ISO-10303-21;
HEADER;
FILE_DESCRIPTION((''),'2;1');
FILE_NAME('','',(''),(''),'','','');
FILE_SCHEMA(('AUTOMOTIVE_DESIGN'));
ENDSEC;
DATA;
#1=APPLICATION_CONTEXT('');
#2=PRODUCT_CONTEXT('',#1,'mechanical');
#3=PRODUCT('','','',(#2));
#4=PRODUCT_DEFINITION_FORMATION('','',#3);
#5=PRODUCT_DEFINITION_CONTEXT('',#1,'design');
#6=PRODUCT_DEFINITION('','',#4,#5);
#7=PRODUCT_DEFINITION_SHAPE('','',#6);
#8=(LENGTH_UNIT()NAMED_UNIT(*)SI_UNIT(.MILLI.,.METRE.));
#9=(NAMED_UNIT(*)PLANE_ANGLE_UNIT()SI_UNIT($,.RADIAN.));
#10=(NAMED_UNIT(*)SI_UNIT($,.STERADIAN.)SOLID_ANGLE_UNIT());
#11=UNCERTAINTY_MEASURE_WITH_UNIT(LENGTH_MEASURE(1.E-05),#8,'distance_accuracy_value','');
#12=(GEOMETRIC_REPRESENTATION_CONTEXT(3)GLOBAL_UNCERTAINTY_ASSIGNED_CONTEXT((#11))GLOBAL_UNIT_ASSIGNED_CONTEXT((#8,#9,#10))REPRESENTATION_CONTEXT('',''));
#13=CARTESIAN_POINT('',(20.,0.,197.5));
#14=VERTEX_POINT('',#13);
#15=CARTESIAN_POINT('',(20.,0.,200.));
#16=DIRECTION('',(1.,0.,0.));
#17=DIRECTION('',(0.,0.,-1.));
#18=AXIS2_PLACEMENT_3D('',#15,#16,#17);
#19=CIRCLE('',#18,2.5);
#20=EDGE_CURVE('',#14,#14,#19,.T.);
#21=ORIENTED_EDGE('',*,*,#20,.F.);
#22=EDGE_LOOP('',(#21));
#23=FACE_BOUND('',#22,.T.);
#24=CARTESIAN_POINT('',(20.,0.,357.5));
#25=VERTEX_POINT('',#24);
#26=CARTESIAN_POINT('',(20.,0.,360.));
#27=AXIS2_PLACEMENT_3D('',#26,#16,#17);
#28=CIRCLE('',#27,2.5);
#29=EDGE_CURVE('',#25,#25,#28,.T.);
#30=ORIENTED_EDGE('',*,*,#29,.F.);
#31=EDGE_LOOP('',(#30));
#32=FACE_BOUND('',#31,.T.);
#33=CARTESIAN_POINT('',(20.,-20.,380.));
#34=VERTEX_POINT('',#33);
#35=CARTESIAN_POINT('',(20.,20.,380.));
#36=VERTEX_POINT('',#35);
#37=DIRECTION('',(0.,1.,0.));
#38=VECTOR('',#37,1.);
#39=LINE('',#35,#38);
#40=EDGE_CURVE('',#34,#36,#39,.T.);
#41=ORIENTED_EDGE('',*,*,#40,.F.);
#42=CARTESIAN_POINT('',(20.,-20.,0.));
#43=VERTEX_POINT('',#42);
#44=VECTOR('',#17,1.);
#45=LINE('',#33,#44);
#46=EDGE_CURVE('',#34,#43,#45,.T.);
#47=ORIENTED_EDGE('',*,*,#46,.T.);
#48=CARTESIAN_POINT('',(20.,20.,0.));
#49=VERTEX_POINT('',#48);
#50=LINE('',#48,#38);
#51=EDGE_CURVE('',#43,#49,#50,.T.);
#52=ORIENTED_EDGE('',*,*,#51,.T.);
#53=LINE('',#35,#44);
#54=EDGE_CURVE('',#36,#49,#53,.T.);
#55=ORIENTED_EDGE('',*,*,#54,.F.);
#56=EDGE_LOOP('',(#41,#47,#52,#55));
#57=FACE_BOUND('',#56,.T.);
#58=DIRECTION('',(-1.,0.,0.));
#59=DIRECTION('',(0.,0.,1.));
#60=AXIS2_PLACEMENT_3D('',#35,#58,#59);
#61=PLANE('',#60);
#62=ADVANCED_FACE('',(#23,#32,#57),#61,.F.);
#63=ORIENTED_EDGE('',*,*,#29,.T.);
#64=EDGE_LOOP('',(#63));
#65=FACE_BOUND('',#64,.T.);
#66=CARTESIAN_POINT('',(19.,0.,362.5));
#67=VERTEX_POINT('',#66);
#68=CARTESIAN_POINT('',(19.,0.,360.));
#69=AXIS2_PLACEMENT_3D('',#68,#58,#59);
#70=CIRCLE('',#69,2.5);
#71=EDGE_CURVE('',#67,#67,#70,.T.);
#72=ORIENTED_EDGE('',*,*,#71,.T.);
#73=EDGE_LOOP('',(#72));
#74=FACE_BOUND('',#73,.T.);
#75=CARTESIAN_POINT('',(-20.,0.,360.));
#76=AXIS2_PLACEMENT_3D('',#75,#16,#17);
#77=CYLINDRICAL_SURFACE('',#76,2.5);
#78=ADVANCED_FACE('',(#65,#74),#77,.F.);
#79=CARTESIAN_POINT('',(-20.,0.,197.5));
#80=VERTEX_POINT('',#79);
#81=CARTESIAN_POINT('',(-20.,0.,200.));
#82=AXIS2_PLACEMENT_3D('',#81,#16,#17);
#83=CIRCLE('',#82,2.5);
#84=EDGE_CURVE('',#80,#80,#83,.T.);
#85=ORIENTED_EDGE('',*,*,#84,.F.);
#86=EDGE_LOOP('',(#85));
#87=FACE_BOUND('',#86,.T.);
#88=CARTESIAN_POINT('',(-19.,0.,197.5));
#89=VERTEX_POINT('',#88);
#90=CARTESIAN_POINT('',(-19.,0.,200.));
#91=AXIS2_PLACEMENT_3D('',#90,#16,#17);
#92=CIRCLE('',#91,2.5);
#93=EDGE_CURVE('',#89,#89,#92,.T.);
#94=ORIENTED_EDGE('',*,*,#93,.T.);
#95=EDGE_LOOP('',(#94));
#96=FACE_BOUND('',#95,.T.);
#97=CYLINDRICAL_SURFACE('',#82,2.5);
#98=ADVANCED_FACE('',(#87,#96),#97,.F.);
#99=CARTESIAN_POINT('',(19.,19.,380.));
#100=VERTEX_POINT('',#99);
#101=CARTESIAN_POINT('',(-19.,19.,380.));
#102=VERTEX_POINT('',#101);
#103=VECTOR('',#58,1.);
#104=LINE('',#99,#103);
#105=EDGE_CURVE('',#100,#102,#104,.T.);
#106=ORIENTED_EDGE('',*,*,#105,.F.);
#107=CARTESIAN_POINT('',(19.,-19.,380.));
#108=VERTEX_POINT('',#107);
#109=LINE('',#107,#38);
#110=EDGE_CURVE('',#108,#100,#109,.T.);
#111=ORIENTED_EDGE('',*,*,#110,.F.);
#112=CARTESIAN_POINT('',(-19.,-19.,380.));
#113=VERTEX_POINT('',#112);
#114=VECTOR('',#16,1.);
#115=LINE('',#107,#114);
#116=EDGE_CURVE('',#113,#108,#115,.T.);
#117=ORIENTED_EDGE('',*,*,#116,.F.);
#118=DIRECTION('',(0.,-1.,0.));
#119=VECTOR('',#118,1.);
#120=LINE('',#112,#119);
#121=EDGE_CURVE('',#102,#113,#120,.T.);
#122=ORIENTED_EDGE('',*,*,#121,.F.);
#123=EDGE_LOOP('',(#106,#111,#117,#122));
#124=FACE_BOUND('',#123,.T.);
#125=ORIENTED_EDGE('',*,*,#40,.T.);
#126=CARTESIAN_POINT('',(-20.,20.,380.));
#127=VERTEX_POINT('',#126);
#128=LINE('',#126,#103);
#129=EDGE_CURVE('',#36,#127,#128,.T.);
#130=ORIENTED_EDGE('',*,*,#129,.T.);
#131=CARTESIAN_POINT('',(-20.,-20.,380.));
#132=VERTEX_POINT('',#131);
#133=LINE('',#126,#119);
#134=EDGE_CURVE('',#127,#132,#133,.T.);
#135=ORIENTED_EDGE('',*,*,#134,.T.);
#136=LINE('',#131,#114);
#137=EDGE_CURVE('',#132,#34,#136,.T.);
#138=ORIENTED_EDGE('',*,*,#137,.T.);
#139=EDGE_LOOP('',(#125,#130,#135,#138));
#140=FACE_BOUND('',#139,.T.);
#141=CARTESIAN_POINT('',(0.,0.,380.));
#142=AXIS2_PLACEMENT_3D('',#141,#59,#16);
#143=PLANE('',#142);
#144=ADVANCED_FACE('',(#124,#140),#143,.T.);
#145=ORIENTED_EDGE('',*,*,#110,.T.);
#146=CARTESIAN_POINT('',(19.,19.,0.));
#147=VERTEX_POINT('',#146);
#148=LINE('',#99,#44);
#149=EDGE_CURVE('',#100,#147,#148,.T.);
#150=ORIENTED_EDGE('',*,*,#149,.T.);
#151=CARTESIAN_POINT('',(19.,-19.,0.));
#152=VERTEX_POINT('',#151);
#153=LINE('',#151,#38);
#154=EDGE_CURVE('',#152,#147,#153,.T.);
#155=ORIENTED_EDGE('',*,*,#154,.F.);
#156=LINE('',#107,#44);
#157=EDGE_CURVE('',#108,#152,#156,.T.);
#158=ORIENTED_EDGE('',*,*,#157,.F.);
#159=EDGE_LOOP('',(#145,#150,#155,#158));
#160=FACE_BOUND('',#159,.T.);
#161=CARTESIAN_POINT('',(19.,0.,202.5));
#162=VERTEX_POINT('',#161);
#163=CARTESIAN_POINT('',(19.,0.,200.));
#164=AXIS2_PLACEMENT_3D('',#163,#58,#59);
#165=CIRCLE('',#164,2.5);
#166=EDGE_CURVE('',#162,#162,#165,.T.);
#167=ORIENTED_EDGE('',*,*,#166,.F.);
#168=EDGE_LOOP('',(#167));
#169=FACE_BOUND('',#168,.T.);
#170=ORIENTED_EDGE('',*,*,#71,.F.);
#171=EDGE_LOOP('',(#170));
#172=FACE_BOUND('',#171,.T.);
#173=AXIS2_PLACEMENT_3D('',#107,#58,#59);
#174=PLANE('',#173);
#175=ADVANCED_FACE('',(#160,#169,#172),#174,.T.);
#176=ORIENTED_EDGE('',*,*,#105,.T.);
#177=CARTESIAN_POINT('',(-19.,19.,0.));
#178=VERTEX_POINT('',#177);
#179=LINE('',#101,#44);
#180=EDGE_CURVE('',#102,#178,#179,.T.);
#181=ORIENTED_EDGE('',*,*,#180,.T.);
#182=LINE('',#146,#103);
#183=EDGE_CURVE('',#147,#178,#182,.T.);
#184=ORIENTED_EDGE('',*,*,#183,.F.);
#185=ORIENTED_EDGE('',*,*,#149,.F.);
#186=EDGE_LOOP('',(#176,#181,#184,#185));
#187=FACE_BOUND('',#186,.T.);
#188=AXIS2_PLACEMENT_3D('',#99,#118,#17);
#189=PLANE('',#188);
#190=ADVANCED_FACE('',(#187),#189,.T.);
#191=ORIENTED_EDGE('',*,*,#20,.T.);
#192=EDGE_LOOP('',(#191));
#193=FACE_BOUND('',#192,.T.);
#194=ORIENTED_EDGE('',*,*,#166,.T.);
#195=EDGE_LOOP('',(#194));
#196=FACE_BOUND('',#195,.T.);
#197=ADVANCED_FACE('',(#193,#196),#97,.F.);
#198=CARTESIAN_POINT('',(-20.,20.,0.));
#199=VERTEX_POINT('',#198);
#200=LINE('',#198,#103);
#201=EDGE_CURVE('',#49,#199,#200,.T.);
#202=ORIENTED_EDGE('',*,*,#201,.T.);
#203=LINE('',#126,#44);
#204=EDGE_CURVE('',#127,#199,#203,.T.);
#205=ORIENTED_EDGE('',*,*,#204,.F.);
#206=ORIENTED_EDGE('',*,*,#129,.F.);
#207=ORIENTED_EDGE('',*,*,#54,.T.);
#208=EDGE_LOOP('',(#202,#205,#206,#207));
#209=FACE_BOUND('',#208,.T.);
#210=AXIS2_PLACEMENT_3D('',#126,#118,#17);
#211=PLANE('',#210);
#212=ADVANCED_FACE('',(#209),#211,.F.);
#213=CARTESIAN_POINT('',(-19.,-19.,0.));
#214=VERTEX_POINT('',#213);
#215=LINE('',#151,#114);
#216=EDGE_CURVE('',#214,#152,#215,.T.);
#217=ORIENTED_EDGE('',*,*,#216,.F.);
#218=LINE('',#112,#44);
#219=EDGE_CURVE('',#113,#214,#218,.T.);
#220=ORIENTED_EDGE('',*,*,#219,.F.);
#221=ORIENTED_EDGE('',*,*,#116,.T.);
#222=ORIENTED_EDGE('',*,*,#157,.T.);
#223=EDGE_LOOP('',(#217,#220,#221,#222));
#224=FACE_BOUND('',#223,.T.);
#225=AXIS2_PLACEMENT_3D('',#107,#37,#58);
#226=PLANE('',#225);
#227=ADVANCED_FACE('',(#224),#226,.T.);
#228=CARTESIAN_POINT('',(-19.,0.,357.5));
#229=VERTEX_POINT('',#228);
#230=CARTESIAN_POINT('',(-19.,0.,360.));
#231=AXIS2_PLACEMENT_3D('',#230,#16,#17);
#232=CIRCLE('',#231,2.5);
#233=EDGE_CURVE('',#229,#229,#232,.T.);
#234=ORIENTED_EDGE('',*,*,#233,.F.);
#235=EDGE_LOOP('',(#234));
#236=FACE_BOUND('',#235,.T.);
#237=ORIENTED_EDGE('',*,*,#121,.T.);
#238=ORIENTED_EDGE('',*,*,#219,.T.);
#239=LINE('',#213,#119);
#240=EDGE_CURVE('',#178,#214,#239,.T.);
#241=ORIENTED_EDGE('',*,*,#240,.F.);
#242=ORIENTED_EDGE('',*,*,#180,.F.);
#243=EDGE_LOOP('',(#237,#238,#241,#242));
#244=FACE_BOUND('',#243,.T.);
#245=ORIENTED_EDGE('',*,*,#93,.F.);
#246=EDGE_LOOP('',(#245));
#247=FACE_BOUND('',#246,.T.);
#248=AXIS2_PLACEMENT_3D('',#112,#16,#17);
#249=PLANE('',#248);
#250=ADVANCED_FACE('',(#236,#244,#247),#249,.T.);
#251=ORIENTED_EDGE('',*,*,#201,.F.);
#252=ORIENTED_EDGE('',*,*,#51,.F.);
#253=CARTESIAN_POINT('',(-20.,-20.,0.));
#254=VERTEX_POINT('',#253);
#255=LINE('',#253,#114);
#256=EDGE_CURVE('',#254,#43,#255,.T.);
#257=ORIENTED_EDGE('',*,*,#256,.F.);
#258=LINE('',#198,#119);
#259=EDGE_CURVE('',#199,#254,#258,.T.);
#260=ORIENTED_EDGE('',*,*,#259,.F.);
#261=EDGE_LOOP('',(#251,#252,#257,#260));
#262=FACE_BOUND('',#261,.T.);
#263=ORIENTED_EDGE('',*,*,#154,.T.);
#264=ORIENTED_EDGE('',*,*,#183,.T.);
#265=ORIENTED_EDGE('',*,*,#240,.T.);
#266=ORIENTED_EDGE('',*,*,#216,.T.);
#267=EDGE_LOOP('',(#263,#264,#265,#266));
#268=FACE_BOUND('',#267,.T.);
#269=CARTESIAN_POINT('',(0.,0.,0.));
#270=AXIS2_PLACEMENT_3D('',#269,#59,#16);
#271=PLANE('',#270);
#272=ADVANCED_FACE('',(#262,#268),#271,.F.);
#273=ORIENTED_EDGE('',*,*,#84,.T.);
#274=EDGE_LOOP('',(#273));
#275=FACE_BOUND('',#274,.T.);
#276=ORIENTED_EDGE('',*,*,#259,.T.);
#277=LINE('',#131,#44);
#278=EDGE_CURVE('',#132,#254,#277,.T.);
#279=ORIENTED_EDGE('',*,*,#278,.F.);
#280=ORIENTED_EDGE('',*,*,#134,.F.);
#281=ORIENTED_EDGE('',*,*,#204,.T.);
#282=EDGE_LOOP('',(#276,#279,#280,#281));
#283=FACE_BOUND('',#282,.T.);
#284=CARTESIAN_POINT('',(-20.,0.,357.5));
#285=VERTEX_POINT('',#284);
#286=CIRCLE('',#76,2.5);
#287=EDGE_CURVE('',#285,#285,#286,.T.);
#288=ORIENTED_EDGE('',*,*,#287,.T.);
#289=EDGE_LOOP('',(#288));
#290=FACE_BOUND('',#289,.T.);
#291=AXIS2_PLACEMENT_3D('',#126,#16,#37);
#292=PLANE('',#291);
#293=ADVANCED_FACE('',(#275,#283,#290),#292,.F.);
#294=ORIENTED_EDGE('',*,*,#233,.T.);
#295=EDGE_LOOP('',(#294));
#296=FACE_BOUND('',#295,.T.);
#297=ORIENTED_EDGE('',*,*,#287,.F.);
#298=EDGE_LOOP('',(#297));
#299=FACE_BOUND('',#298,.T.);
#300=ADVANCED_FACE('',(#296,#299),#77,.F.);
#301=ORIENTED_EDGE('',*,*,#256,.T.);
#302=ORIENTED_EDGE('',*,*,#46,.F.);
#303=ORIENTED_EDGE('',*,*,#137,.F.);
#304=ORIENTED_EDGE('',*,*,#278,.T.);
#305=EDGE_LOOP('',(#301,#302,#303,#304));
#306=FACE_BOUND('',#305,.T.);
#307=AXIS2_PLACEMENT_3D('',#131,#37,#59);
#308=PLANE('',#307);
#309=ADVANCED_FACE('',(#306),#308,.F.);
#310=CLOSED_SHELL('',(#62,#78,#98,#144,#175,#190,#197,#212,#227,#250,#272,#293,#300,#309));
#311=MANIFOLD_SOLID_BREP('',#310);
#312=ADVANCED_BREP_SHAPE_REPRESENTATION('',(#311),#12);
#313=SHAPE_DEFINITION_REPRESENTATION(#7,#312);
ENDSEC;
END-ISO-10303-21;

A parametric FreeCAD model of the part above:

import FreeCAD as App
import Part
import Sketcher
from FreeCAD import Vector


def add_polygon(sketch, points):
    """Adds a closed chain of lines whose ends are joined by coincident constraints."""
    first, n = sketch.GeometryCount, len(points)
    for a, b in zip(points, points[1:] + points[:1]):
        sketch.addGeometry(Part.LineSegment(App.Vector(*a, 0), App.Vector(*b, 0)), False)
    for i in range(n):
        sketch.addConstraint(Sketcher.Constraint("Coincident", first + i, 2, first + (i + 1) % n, 1))

doc = App.newDocument("Part")
body = doc.addObject("PartDesign::Body", "Body")

sketch1 = doc.addObject("Sketcher::SketchObject", "Sketch")
body.addObject(sketch1)
sketch1.AttachmentSupport = (doc.XY_Plane, [""])
sketch1.MapMode = "FlatFace"
add_polygon(sketch1, [(-20, 20), (-20, -20), (20, -20), (20, 20)])
add_polygon(sketch1, [(19, -19), (-19, -19), (-19, 19), (19, 19)])
sketch1.addConstraint([
    Sketcher.Constraint("Vertical", 0),
    Sketcher.Constraint("Horizontal", 1),
    Sketcher.Constraint("Vertical", 2),
    Sketcher.Constraint("Horizontal", 3),
    Sketcher.Constraint("Horizontal", 4),
    Sketcher.Constraint("Vertical", 5),
    Sketcher.Constraint("Horizontal", 6),
    Sketcher.Constraint("Vertical", 7),
    Sketcher.Constraint("Symmetric", 0, 2, 2, 2, -1, 1),
    Sketcher.Constraint("Symmetric", 4, 2, 6, 2, -1, 1),
    Sketcher.Constraint("Equal", 3, 0),
    Sketcher.Constraint("Equal", 6, 5),
    Sketcher.Constraint("DistanceX", 1, 1, 1, 2, 40.0),
    Sketcher.Constraint("DistanceX", 4, 2, 4, 1, 38.0),
])
pad1 = doc.addObject("PartDesign::Pad", "Pad")
body.addObject(pad1)
pad1.Profile = sketch1
pad1.Length = 380

sketch2 = doc.addObject("Sketcher::SketchObject", "Sketch001")
body.addObject(sketch2)
sketch2.AttachmentSupport = (doc.YZ_Plane, [""])
sketch2.MapMode = "FlatFace"
sketch2.AttachmentOffset = App.Placement(Vector(0, 0, 20), App.Rotation())
sketch2.addGeometry([
    Part.Circle(Vector(0, 360, 0), Vector(0, 0, 1), 2.5),
    Part.Circle(Vector(0, 200, 0), Vector(0, 0, 1), 2.5),
], False)
sketch2.addConstraint([
    Sketcher.Constraint("Equal", 0, 1),
    Sketcher.Constraint("PointOnObject", 0, 3, -2),
    Sketcher.Constraint("PointOnObject", 1, 3, -2),
    Sketcher.Constraint("Diameter", 0, 5.0),
    Sketcher.Constraint("DistanceY", -1, 1, 0, 3, 360.0),
    Sketcher.Constraint("DistanceY", -1, 1, 1, 3, 200.0),
])
pocket1 = doc.addObject("PartDesign::Pocket", "Pocket")
body.addObject(pocket1)
pocket1.Profile = sketch2
pocket1.Type = "ThroughAll"

doc.recompute()
